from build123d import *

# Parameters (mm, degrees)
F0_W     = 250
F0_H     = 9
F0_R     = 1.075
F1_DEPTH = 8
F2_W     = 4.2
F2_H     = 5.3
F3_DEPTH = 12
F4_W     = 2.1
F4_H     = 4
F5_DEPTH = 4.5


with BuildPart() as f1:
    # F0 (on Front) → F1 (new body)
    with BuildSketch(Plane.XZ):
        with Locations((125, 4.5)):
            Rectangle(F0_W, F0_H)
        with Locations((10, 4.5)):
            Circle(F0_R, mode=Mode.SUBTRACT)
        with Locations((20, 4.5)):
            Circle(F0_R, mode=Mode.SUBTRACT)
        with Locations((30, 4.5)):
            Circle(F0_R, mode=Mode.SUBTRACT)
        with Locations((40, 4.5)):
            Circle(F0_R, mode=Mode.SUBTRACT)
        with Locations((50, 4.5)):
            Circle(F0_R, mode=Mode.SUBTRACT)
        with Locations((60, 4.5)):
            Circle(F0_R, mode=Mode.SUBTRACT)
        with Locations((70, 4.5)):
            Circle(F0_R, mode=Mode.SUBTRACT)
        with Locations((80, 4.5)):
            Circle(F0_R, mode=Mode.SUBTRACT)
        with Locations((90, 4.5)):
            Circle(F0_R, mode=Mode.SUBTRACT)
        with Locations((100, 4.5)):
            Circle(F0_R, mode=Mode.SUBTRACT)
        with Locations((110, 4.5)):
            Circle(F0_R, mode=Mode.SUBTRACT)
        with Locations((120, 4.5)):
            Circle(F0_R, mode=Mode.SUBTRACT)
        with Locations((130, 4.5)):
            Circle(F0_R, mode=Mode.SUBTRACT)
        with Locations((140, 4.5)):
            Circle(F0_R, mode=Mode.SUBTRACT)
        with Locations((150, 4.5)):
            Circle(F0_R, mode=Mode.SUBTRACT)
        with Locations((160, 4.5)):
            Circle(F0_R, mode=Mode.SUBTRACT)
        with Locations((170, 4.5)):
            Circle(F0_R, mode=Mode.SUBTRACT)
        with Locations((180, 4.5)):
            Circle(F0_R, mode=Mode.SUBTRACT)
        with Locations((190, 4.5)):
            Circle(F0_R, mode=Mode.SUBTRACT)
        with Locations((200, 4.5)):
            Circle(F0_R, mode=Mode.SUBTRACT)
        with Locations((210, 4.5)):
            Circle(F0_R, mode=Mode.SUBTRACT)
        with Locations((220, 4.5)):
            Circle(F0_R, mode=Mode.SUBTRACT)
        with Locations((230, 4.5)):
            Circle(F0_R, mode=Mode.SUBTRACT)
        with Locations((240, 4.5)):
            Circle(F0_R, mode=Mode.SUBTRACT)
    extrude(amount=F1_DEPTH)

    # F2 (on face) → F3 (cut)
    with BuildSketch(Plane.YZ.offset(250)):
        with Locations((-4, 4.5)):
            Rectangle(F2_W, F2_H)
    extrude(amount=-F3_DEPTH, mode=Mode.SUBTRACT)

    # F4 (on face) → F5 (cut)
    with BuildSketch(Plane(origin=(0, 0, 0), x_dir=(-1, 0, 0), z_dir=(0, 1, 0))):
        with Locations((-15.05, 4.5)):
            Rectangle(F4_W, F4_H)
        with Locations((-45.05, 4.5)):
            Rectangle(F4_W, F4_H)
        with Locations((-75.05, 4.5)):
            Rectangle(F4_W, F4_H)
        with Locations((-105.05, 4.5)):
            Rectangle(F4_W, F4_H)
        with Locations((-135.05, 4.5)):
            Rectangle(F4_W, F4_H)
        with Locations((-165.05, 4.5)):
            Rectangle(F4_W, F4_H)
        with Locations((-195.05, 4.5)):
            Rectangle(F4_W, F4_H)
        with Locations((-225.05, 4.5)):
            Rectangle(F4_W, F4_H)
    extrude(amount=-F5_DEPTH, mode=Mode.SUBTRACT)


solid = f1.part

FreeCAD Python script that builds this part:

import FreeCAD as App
import Part
import Sketcher
from FreeCAD import Vector
Q = App.Units.Quantity


def add_polygon(sketch, points):
    """Adds a closed chain of lines whose ends are joined by coincident constraints."""
    first, n = sketch.GeometryCount, len(points)
    for a, b in zip(points, points[1:] + points[:1]):
        sketch.addGeometry(Part.LineSegment(App.Vector(*a, 0), App.Vector(*b, 0)), False)
    for i in range(n):
        sketch.addConstraint(Sketcher.Constraint("Coincident", first + i, 2, first + (i + 1) % n, 1))

doc = App.newDocument("Part")
body = doc.addObject("PartDesign::Body", "Body")

# Sketch on XZ plane
sketch1 = body.newObject("Sketcher::SketchObject", "Sketch")
sketch1.AttachmentSupport = (doc.getObject("XZ_Plane"), [""])
sketch1.MapMode = "FlatFace"
add_polygon(sketch1, [(0, 9), (0, 0), (250, 0), (250, 9)])  # lines 0-3
sketch1.addGeometry(Part.Circle(Vector(10, 4.5, 0), Vector(0, 0, 1), 1.1), False)  # 4
sketch1.addGeometry(Part.Circle(Vector(20, 4.5, 0), Vector(0, 0, 1), 1.1), False)  # 5
sketch1.addGeometry(Part.Circle(Vector(30, 4.5, 0), Vector(0, 0, 1), 1.1), False)  # 6
sketch1.addGeometry(Part.Circle(Vector(40, 4.5, 0), Vector(0, 0, 1), 1.1), False)  # 7
sketch1.addGeometry(Part.Circle(Vector(50, 4.5, 0), Vector(0, 0, 1), 1.1), False)  # 8
sketch1.addGeometry(Part.Circle(Vector(60, 4.5, 0), Vector(0, 0, 1), 1.1), False)  # 9
sketch1.addGeometry(Part.Circle(Vector(70, 4.5, 0), Vector(0, 0, 1), 1.1), False)  # 10
sketch1.addGeometry(Part.Circle(Vector(80, 4.5, 0), Vector(0, 0, 1), 1.1), False)  # 11
sketch1.addGeometry(Part.Circle(Vector(90, 4.5, 0), Vector(0, 0, 1), 1.1), False)  # 12
sketch1.addGeometry(Part.Circle(Vector(100, 4.5, 0), Vector(0, 0, 1), 1.1), False)  # 13
sketch1.addGeometry(Part.Circle(Vector(110, 4.5, 0), Vector(0, 0, 1), 1.1), False)  # 14
sketch1.addGeometry(Part.Circle(Vector(120, 4.5, 0), Vector(0, 0, 1), 1.1), False)  # 15
sketch1.addGeometry(Part.Circle(Vector(130, 4.5, 0), Vector(0, 0, 1), 1.1), False)  # 16
sketch1.addGeometry(Part.Circle(Vector(140, 4.5, 0), Vector(0, 0, 1), 1.1), False)  # 17
sketch1.addGeometry(Part.Circle(Vector(150, 4.5, 0), Vector(0, 0, 1), 1.1), False)  # 18
sketch1.addGeometry(Part.Circle(Vector(160, 4.5, 0), Vector(0, 0, 1), 1.1), False)  # 19
sketch1.addGeometry(Part.Circle(Vector(170, 4.5, 0), Vector(0, 0, 1), 1.1), False)  # 20
sketch1.addGeometry(Part.Circle(Vector(180, 4.5, 0), Vector(0, 0, 1), 1.1), False)  # 21
sketch1.addGeometry(Part.Circle(Vector(190, 4.5, 0), Vector(0, 0, 1), 1.1), False)  # 22
sketch1.addGeometry(Part.Circle(Vector(200, 4.5, 0), Vector(0, 0, 1), 1.1), False)  # 23
sketch1.addGeometry(Part.Circle(Vector(210, 4.5, 0), Vector(0, 0, 1), 1.1), False)  # 24
sketch1.addGeometry(Part.Circle(Vector(220, 4.5, 0), Vector(0, 0, 1), 1.1), False)  # 25
sketch1.addGeometry(Part.Circle(Vector(230, 4.5, 0), Vector(0, 0, 1), 1.1), False)  # 26
sketch1.addGeometry(Part.Circle(Vector(240, 4.5, 0), Vector(0, 0, 1), 1.1), False)  # 27
sketch1.addConstraint(Sketcher.Constraint("Vertical", 0))
sketch1.addConstraint(Sketcher.Constraint("Horizontal", 1))
sketch1.addConstraint(Sketcher.Constraint("Vertical", 2))
sketch1.addConstraint(Sketcher.Constraint("Horizontal", 3))
sketch1.addConstraint(Sketcher.Constraint("Coincident", 0, 2, -1, 1))
sketch1.addConstraint(Sketcher.Constraint("Equal", 4, 5))
sketch1.addConstraint(Sketcher.Constraint("Equal", 5, 6))
sketch1.addConstraint(Sketcher.Constraint("Equal", 6, 7))
sketch1.addConstraint(Sketcher.Constraint("Equal", 7, 8))
sketch1.addConstraint(Sketcher.Constraint("Equal", 8, 9))
sketch1.addConstraint(Sketcher.Constraint("Equal", 9, 10))
sketch1.addConstraint(Sketcher.Constraint("Equal", 10, 11))
sketch1.addConstraint(Sketcher.Constraint("Equal", 11, 12))
sketch1.addConstraint(Sketcher.Constraint("Equal", 12, 13))
sketch1.addConstraint(Sketcher.Constraint("Equal", 13, 14))
sketch1.addConstraint(Sketcher.Constraint("Equal", 14, 15))
sketch1.addConstraint(Sketcher.Constraint("Equal", 15, 16))
sketch1.addConstraint(Sketcher.Constraint("Equal", 16, 17))
sketch1.addConstraint(Sketcher.Constraint("Equal", 17, 18))
sketch1.addConstraint(Sketcher.Constraint("Equal", 18, 19))
sketch1.addConstraint(Sketcher.Constraint("Equal", 19, 20))
sketch1.addConstraint(Sketcher.Constraint("Equal", 20, 21))
sketch1.addConstraint(Sketcher.Constraint("Equal", 21, 22))
sketch1.addConstraint(Sketcher.Constraint("Equal", 22, 23))
sketch1.addConstraint(Sketcher.Constraint("Equal", 23, 24))
sketch1.addConstraint(Sketcher.Constraint("Equal", 24, 25))
sketch1.addConstraint(Sketcher.Constraint("Equal", 25, 26))
sketch1.addConstraint(Sketcher.Constraint("Equal", 26, 27))
sketch1.addConstraint(Sketcher.Constraint("Horizontal", 4, 3, 5, 3))
sketch1.addConstraint(Sketcher.Constraint("Horizontal", 5, 3, 6, 3))
sketch1.addConstraint(Sketcher.Constraint("Horizontal", 6, 3, 7, 3))
sketch1.addConstraint(Sketcher.Constraint("Horizontal", 7, 3, 8, 3))
sketch1.addConstraint(Sketcher.Constraint("Horizontal", 8, 3, 9, 3))
sketch1.addConstraint(Sketcher.Constraint("Horizontal", 9, 3, 10, 3))
sketch1.addConstraint(Sketcher.Constraint("Horizontal", 10, 3, 11, 3))
sketch1.addConstraint(Sketcher.Constraint("Horizontal", 11, 3, 12, 3))
sketch1.addConstraint(Sketcher.Constraint("Horizontal", 12, 3, 13, 3))
sketch1.addConstraint(Sketcher.Constraint("Horizontal", 13, 3, 14, 3))
sketch1.addConstraint(Sketcher.Constraint("Horizontal", 14, 3, 15, 3))
sketch1.addConstraint(Sketcher.Constraint("Horizontal", 15, 3, 16, 3))
sketch1.addConstraint(Sketcher.Constraint("Horizontal", 16, 3, 17, 3))
sketch1.addConstraint(Sketcher.Constraint("Horizontal", 17, 3, 18, 3))
sketch1.addConstraint(Sketcher.Constraint("Horizontal", 18, 3, 19, 3))
sketch1.addConstraint(Sketcher.Constraint("Horizontal", 19, 3, 20, 3))
sketch1.addConstraint(Sketcher.Constraint("Horizontal", 20, 3, 21, 3))
sketch1.addConstraint(Sketcher.Constraint("Horizontal", 21, 3, 22, 3))
sketch1.addConstraint(Sketcher.Constraint("Horizontal", 22, 3, 23, 3))
sketch1.addConstraint(Sketcher.Constraint("Horizontal", 23, 3, 24, 3))
sketch1.addConstraint(Sketcher.Constraint("Horizontal", 24, 3, 25, 3))
sketch1.addConstraint(Sketcher.Constraint("Horizontal", 25, 3, 26, 3))
sketch1.addConstraint(Sketcher.Constraint("Horizontal", 26, 3, 27, 3))
sketch1.addConstraint(Sketcher.Constraint("Diameter", 4, Q("2.15 mm")))
sketch1.addConstraint(Sketcher.Constraint("DistanceX", 1, 1, 1, 2, Q("250 mm")))
sketch1.addConstraint(Sketcher.Constraint("DistanceY", 0, 2, 0, 1, Q("9 mm")))
sketch1.addConstraint(Sketcher.Constraint("DistanceX", -1, 1, 4, 3, Q("10 mm")))
sketch1.addConstraint(Sketcher.Constraint("DistanceX", -1, 1, 5, 3, Q("20 mm")))
sketch1.addConstraint(Sketcher.Constraint("DistanceX", -1, 1, 6, 3, Q("30 mm")))
sketch1.addConstraint(Sketcher.Constraint("DistanceX", -1, 1, 7, 3, Q("40 mm")))
sketch1.addConstraint(Sketcher.Constraint("DistanceX", -1, 1, 8, 3, Q("50 mm")))
sketch1.addConstraint(Sketcher.Constraint("DistanceX", -1, 1, 9, 3, Q("60 mm")))
sketch1.addConstraint(Sketcher.Constraint("DistanceX", -1, 1, 10, 3, Q("70 mm")))
sketch1.addConstraint(Sketcher.Constraint("DistanceX", -1, 1, 11, 3, Q("80 mm")))
sketch1.addConstraint(Sketcher.Constraint("DistanceX", -1, 1, 12, 3, Q("90 mm")))
sketch1.addConstraint(Sketcher.Constraint("DistanceX", -1, 1, 13, 3, Q("100 mm")))
sketch1.addConstraint(Sketcher.Constraint("DistanceX", -1, 1, 14, 3, Q("110 mm")))
sketch1.addConstraint(Sketcher.Constraint("DistanceX", -1, 1, 15, 3, Q("120 mm")))
sketch1.addConstraint(Sketcher.Constraint("DistanceX", -1, 1, 16, 3, Q("130 mm")))
sketch1.addConstraint(Sketcher.Constraint("DistanceX", -1, 1, 17, 3, Q("140 mm")))
sketch1.addConstraint(Sketcher.Constraint("DistanceX", -1, 1, 18, 3, Q("150 mm")))
sketch1.addConstraint(Sketcher.Constraint("DistanceX", -1, 1, 19, 3, Q("160 mm")))
sketch1.addConstraint(Sketcher.Constraint("DistanceX", -1, 1, 20, 3, Q("170 mm")))
sketch1.addConstraint(Sketcher.Constraint("DistanceX", -1, 1, 21, 3, Q("180 mm")))
sketch1.addConstraint(Sketcher.Constraint("DistanceX", -1, 1, 22, 3, Q("190 mm")))
sketch1.addConstraint(Sketcher.Constraint("DistanceX", -1, 1, 23, 3, Q("200 mm")))
sketch1.addConstraint(Sketcher.Constraint("DistanceX", -1, 1, 24, 3, Q("210 mm")))
sketch1.addConstraint(Sketcher.Constraint("DistanceX", -1, 1, 25, 3, Q("220 mm")))
sketch1.addConstraint(Sketcher.Constraint("DistanceX", -1, 1, 26, 3, Q("230 mm")))
sketch1.addConstraint(Sketcher.Constraint("DistanceX", -1, 1, 27, 3, Q("240 mm")))
sketch1.addConstraint(Sketcher.Constraint("DistanceY", -1, 1, 4, 3, Q("4.5 mm")))
pad1 = body.newObject("PartDesign::Pad", "Pad")
pad1.Profile = sketch1
pad1.Length = 8

# Sketch on YZ plane
sketch2 = body.newObject("Sketcher::SketchObject", "Sketch001")
sketch2.AttachmentSupport = (doc.getObject("YZ_Plane"), [""])
sketch2.MapMode = "FlatFace"
sketch2.AttachmentOffset = App.Placement(Vector(0, 0, 250), App.Rotation())
add_polygon(sketch2, [(-6.1, 7.2), (-6.1, 1.9), (-1.9, 1.9), (-1.9, 7.2)])  # lines 0-3
sketch2.addConstraint(Sketcher.Constraint("Vertical", 0))
sketch2.addConstraint(Sketcher.Constraint("Horizontal", 1))
sketch2.addConstraint(Sketcher.Constraint("Vertical", 2))
sketch2.addConstraint(Sketcher.Constraint("Horizontal", 3))
sketch2.addConstraint(Sketcher.Constraint("DistanceX", 1, 1, 1, 2, Q("4.2 mm")))
sketch2.addConstraint(Sketcher.Constraint("DistanceY", 0, 2, 0, 1, Q("5.3 mm")))
sketch2.addConstraint(Sketcher.Constraint("DistanceX", 0, 2, -1, 1, Q("6.1 mm")))
sketch2.addConstraint(Sketcher.Constraint("DistanceY", -1, 1, 0, 2, Q("1.85 mm")))
pocket1 = body.newObject("PartDesign::Pocket", "Pocket")
pocket1.Profile = sketch2
pocket1.Length = 12

# Sketch on XZ plane
sketch3 = body.newObject("Sketcher::SketchObject", "Sketch002")
sketch3.AttachmentSupport = (doc.getObject("XZ_Plane"), [""])
sketch3.MapMode = "FlatFace"
add_polygon(sketch3, [(16.1, 6.5), (16.1, 2.5), (14, 2.5), (14, 6.5)])  # lines 0-3
add_polygon(sketch3, [(46.1, 6.5), (46.1, 2.5), (44, 2.5), (44, 6.5)])  # lines 4-7
add_polygon(sketch3, [(76.1, 6.5), (76.1, 2.5), (74, 2.5), (74, 6.5)])  # lines 8-11
add_polygon(sketch3, [(106.1, 6.5), (106.1, 2.5), (104, 2.5), (104, 6.5)])  # lines 12-15
add_polygon(sketch3, [(136.1, 6.5), (136.1, 2.5), (134, 2.5), (134, 6.5)])  # lines 16-19
add_polygon(sketch3, [(166.1, 6.5), (166.1, 2.5), (164, 2.5), (164, 6.5)])  # lines 20-23
add_polygon(sketch3, [(196.1, 6.5), (196.1, 2.5), (194, 2.5), (194, 6.5)])  # lines 24-27
add_polygon(sketch3, [(226.1, 6.5), (226.1, 2.5), (224, 2.5), (224, 6.5)])  # lines 28-31
sketch3.addConstraint(Sketcher.Constraint("Vertical", 0))
sketch3.addConstraint(Sketcher.Constraint("Horizontal", 1))
sketch3.addConstraint(Sketcher.Constraint("Vertical", 2))
sketch3.addConstraint(Sketcher.Constraint("Horizontal", 3))
sketch3.addConstraint(Sketcher.Constraint("Vertical", 4))
sketch3.addConstraint(Sketcher.Constraint("Horizontal", 5))
sketch3.addConstraint(Sketcher.Constraint("Vertical", 6))
sketch3.addConstraint(Sketcher.Constraint("Horizontal", 7))
sketch3.addConstraint(Sketcher.Constraint("Vertical", 8))
sketch3.addConstraint(Sketcher.Constraint("Horizontal", 9))
sketch3.addConstraint(Sketcher.Constraint("Vertical", 10))
sketch3.addConstraint(Sketcher.Constraint("Horizontal", 11))
sketch3.addConstraint(Sketcher.Constraint("Vertical", 12))
sketch3.addConstraint(Sketcher.Constraint("Horizontal", 13))
sketch3.addConstraint(Sketcher.Constraint("Vertical", 14))
sketch3.addConstraint(Sketcher.Constraint("Horizontal", 15))
sketch3.addConstraint(Sketcher.Constraint("Vertical", 16))
sketch3.addConstraint(Sketcher.Constraint("Horizontal", 17))
sketch3.addConstraint(Sketcher.Constraint("Vertical", 18))
sketch3.addConstraint(Sketcher.Constraint("Horizontal", 19))
sketch3.addConstraint(Sketcher.Constraint("Vertical", 20))
sketch3.addConstraint(Sketcher.Constraint("Horizontal", 21))
sketch3.addConstraint(Sketcher.Constraint("Vertical", 22))
sketch3.addConstraint(Sketcher.Constraint("Horizontal", 23))
sketch3.addConstraint(Sketcher.Constraint("Vertical", 24))
sketch3.addConstraint(Sketcher.Constraint("Horizontal", 25))
sketch3.addConstraint(Sketcher.Constraint("Vertical", 26))
sketch3.addConstraint(Sketcher.Constraint("Horizontal", 27))
sketch3.addConstraint(Sketcher.Constraint("Vertical", 28))
sketch3.addConstraint(Sketcher.Constraint("Horizontal", 29))
sketch3.addConstraint(Sketcher.Constraint("Vertical", 30))
sketch3.addConstraint(Sketcher.Constraint("Horizontal", 31))
sketch3.addConstraint(Sketcher.Constraint("Horizontal", 1, 2, 4, 2))
sketch3.addConstraint(Sketcher.Constraint("Horizontal", 3, 2, 6, 2))
sketch3.addConstraint(Sketcher.Constraint("Horizontal", 5, 2, 8, 2))
sketch3.addConstraint(Sketcher.Constraint("Horizontal", 7, 2, 10, 2))
sketch3.addConstraint(Sketcher.Constraint("Horizontal", 9, 2, 12, 2))
sketch3.addConstraint(Sketcher.Constraint("Horizontal", 11, 2, 14, 2))
sketch3.addConstraint(Sketcher.Constraint("Horizontal", 13, 2, 16, 2))
sketch3.addConstraint(Sketcher.Constraint("Horizontal", 15, 2, 18, 2))
sketch3.addConstraint(Sketcher.Constraint("Horizontal", 17, 2, 20, 2))
sketch3.addConstraint(Sketcher.Constraint("Horizontal", 19, 2, 22, 2))
sketch3.addConstraint(Sketcher.Constraint("Horizontal", 21, 2, 24, 2))
sketch3.addConstraint(Sketcher.Constraint("Horizontal", 23, 2, 26, 2))
sketch3.addConstraint(Sketcher.Constraint("Horizontal", 25, 2, 28, 2))
sketch3.addConstraint(Sketcher.Constraint("Horizontal", 27, 2, 30, 2))
sketch3.addConstraint(Sketcher.Constraint("Equal", 3, 5))
sketch3.addConstraint(Sketcher.Constraint("Equal", 7, 9))
sketch3.addConstraint(Sketcher.Constraint("Equal", 11, 13))
sketch3.addConstraint(Sketcher.Constraint("Equal", 15, 17))
sketch3.addConstraint(Sketcher.Constraint("Equal", 19, 21))
sketch3.addConstraint(Sketcher.Constraint("Equal", 23, 25))
sketch3.addConstraint(Sketcher.Constraint("Equal", 27, 29))
sketch3.addConstraint(Sketcher.Constraint("DistanceY", 0, 2, 0, 1, Q("4 mm")))
sketch3.addConstraint(Sketcher.Constraint("DistanceX", 1, 2, 1, 1, Q("2.1 mm")))
sketch3.addConstraint(Sketcher.Constraint("DistanceX", -1, 1, 1, 2, Q("14 mm")))
sketch3.addConstraint(Sketcher.Constraint("DistanceX", -1, 1, 5, 2, Q("44 mm")))
sketch3.addConstraint(Sketcher.Constraint("DistanceX", -1, 1, 9, 2, Q("74 mm")))
sketch3.addConstraint(Sketcher.Constraint("DistanceX", -1, 1, 13, 2, Q("104 mm")))
sketch3.addConstraint(Sketcher.Constraint("DistanceX", -1, 1, 17, 2, Q("134 mm")))
sketch3.addConstraint(Sketcher.Constraint("DistanceX", -1, 1, 21, 2, Q("164 mm")))
sketch3.addConstraint(Sketcher.Constraint("DistanceX", -1, 1, 25, 2, Q("194 mm")))
sketch3.addConstraint(Sketcher.Constraint("DistanceX", -1, 1, 29, 2, Q("224 mm")))
sketch3.addConstraint(Sketcher.Constraint("DistanceY", -1, 1, 0, 2, Q("2.5 mm")))
pocket2 = body.newObject("PartDesign::Pocket", "Pocket001")
pocket2.Profile = sketch3
pocket2.Length = 4.5
pocket2.Reversed = True

doc.recompute()
